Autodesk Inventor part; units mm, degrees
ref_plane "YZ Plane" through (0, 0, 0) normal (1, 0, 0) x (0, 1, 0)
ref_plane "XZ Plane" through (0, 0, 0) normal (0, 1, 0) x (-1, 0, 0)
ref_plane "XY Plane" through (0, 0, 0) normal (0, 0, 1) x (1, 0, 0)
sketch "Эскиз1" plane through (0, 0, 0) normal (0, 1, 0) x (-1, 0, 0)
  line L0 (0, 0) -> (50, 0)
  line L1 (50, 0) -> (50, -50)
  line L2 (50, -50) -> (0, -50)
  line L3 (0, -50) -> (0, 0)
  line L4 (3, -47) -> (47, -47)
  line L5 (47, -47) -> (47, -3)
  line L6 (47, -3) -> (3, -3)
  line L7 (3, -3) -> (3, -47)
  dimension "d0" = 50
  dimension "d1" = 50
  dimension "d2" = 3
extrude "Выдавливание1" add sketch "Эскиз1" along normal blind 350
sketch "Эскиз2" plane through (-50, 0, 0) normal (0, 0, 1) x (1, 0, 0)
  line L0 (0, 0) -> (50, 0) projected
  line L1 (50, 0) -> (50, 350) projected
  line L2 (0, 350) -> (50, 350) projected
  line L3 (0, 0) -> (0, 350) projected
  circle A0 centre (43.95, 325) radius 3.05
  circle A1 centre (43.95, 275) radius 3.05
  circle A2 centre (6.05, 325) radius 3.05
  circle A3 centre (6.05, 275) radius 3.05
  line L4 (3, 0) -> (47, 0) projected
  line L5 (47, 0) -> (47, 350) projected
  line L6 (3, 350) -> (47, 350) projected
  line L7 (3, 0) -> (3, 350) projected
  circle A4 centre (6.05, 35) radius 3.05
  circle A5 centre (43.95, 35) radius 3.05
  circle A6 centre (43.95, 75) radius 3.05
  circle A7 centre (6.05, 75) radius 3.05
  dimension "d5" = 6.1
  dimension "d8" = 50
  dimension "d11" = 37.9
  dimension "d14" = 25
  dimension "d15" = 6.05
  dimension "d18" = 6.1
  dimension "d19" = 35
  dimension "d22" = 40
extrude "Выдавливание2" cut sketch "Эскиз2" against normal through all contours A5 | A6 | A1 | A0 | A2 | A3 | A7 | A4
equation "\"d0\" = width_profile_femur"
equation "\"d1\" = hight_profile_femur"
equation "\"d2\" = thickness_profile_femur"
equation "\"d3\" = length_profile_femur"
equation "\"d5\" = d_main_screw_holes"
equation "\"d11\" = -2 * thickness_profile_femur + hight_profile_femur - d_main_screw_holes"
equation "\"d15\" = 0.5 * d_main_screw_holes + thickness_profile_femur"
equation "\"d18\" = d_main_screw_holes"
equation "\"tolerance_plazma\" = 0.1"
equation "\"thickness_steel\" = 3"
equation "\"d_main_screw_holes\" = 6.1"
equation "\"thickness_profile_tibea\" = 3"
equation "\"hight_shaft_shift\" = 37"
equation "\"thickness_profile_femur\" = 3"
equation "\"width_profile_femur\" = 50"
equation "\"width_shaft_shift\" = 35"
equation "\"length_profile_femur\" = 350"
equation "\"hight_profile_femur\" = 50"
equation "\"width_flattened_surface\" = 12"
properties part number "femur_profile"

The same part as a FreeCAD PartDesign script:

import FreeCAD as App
import Part
import Sketcher


def add_polygon(sketch, points):
    """Adds a closed chain of lines whose ends are joined by coincident constraints."""
    first, n = sketch.GeometryCount, len(points)
    for a, b in zip(points, points[1:] + points[:1]):
        sketch.addGeometry(Part.LineSegment(App.Vector(*a, 0), App.Vector(*b, 0)), False)
    for i in range(n):
        sketch.addConstraint(Sketcher.Constraint("Coincident", first + i, 2, first + (i + 1) % n, 1))

doc = App.newDocument("Part")
params = doc.addObject("Spreadsheet::Sheet", "Params")
for row, (alias, value) in enumerate([
    ("sketch1_width", "50 mm"),
    ("pad1_length", "350 mm"),
    ("sketch2_diameter", "6.1 mm"),
], start=1):
    params.set(f"A{row}", alias)
    params.set(f"B{row}", "=" + value)
    params.setAlias(f"B{row}", alias)

body = doc.addObject("PartDesign::Body", "Body")

sketch1 = body.newObject("Sketcher::SketchObject", "Sketch")
sketch1.AttachmentSupport = (doc.getObject("XZ_Plane"), [""])
sketch1.MapMode = "FlatFace"
add_polygon(sketch1, [(-50, 0), (0, 0), (0, -50), (-50, -50)])
add_polygon(sketch1, [(-47, -47), (-3, -47), (-3, -3), (-47, -3)])
sketch1.addConstraint(Sketcher.Constraint("Horizontal", 0))
sketch1.addConstraint(Sketcher.Constraint("Vertical", 1))
sketch1.addConstraint(Sketcher.Constraint("Horizontal", 2))
sketch1.addConstraint(Sketcher.Constraint("Vertical", 3))
sketch1.addConstraint(Sketcher.Constraint("Horizontal", 4))
sketch1.addConstraint(Sketcher.Constraint("Vertical", 5))
sketch1.addConstraint(Sketcher.Constraint("Horizontal", 6))
sketch1.addConstraint(Sketcher.Constraint("Vertical", 7))
sketch1.addConstraint(Sketcher.Constraint("Coincident", 0, 2, -1, 1))
sketch1.addConstraint(Sketcher.Constraint("Equal", 2, 1))
sketch1.addConstraint(Sketcher.Constraint("Equal", 6, 5))
sketch1.addConstraint(Sketcher.Constraint("DistanceX", 0, 1, 0, 2, 50.0))
sketch1.addConstraint(Sketcher.Constraint("DistanceX", 4, 2, -1, 1, 3.0))
sketch1.addConstraint(Sketcher.Constraint("DistanceY", 5, 2, -1, 1, 3.0))
sketch1.addConstraint(Sketcher.Constraint("DistanceY", 1, 2, 4, 2, 3.0))
sketch1.setExpression("Constraints[19]", "Params.sketch1_width")
pad1 = body.newObject("PartDesign::Pad", "Pad")
pad1.Profile = sketch1
pad1.setExpression("Length", "Params.pad1_length")
pad1.Reversed = True

sketch2 = body.newObject("Sketcher::SketchObject", "Sketch001")
sketch2.AttachmentSupport = (doc.getObject("XY_Plane"), [""])
sketch2.MapMode = "FlatFace"
sketch2.addGeometry(Part.Circle(App.Vector(-6, 35, 0), App.Vector(0, 0, 1), 3), False)
sketch2.addGeometry(Part.Circle(App.Vector(-6, 75, 0), App.Vector(0, 0, 1), 3), False)
sketch2.addGeometry(Part.Circle(App.Vector(-6, 275, 0), App.Vector(0, 0, 1), 3), False)
sketch2.addGeometry(Part.Circle(App.Vector(-6, 325, 0), App.Vector(0, 0, 1), 3), False)
sketch2.addGeometry(Part.Circle(App.Vector(-44, 325, 0), App.Vector(0, 0, 1), 3), False)
sketch2.addGeometry(Part.Circle(App.Vector(-44, 275, 0), App.Vector(0, 0, 1), 3), False)
sketch2.addGeometry(Part.Circle(App.Vector(-44, 75, 0), App.Vector(0, 0, 1), 3), False)
sketch2.addGeometry(Part.Circle(App.Vector(-44, 35, 0), App.Vector(0, 0, 1), 3), False)
sketch2.addConstraint(Sketcher.Constraint("Equal", 0, 1))
sketch2.addConstraint(Sketcher.Constraint("Equal", 1, 2))
sketch2.addConstraint(Sketcher.Constraint("Equal", 2, 3))
sketch2.addConstraint(Sketcher.Constraint("Equal", 3, 4))
sketch2.addConstraint(Sketcher.Constraint("Equal", 4, 5))
sketch2.addConstraint(Sketcher.Constraint("Equal", 5, 6))
sketch2.addConstraint(Sketcher.Constraint("Equal", 6, 7))
sketch2.addConstraint(Sketcher.Constraint("Horizontal", 3, 3, 4, 3))
sketch2.addConstraint(Sketcher.Constraint("Horizontal", 2, 3, 5, 3))
sketch2.addConstraint(Sketcher.Constraint("Horizontal", 1, 3, 6, 3))
sketch2.addConstraint(Sketcher.Constraint("Horizontal", 0, 3, 7, 3))
sketch2.addConstraint(Sketcher.Constraint("Vertical", 0, 3, 1, 3))
sketch2.addConstraint(Sketcher.Constraint("Vertical", 1, 3, 2, 3))
sketch2.addConstraint(Sketcher.Constraint("Vertical", 2, 3, 3, 3))
sketch2.addConstraint(Sketcher.Constraint("Vertical", 4, 3, 5, 3))
sketch2.addConstraint(Sketcher.Constraint("Vertical", 5, 3, 6, 3))
sketch2.addConstraint(Sketcher.Constraint("Vertical", 6, 3, 7, 3))
sketch2.addConstraint(Sketcher.Constraint("Diameter", 0, 6.1))
sketch2.addConstraint(Sketcher.Constraint("DistanceY", -1, 1, 0, 3, 35.0))
sketch2.addConstraint(Sketcher.Constraint("DistanceY", 0, 3, 1, 3, 40.0))
sketch2.addConstraint(Sketcher.Constraint("DistanceY", 2, 3, 3, 3, 50.0))
sketch2.addConstraint(Sketcher.Constraint("DistanceX", 4, 3, 3, 3, 37.9))
sketch2.addConstraint(Sketcher.Constraint("DistanceX", 0, 3, -1, 1, 6.05))
sketch2.addConstraint(Sketcher.Constraint("DistanceY", -1, 1, 2, 3, 275.0))
sketch2.setExpression("Constraints[17]", "Params.sketch2_diameter")
pocket1 = body.newObject("PartDesign::Pocket", "Pocket")
pocket1.Profile = sketch2
pocket1.Type = "ThroughAll"

doc.recompute()
